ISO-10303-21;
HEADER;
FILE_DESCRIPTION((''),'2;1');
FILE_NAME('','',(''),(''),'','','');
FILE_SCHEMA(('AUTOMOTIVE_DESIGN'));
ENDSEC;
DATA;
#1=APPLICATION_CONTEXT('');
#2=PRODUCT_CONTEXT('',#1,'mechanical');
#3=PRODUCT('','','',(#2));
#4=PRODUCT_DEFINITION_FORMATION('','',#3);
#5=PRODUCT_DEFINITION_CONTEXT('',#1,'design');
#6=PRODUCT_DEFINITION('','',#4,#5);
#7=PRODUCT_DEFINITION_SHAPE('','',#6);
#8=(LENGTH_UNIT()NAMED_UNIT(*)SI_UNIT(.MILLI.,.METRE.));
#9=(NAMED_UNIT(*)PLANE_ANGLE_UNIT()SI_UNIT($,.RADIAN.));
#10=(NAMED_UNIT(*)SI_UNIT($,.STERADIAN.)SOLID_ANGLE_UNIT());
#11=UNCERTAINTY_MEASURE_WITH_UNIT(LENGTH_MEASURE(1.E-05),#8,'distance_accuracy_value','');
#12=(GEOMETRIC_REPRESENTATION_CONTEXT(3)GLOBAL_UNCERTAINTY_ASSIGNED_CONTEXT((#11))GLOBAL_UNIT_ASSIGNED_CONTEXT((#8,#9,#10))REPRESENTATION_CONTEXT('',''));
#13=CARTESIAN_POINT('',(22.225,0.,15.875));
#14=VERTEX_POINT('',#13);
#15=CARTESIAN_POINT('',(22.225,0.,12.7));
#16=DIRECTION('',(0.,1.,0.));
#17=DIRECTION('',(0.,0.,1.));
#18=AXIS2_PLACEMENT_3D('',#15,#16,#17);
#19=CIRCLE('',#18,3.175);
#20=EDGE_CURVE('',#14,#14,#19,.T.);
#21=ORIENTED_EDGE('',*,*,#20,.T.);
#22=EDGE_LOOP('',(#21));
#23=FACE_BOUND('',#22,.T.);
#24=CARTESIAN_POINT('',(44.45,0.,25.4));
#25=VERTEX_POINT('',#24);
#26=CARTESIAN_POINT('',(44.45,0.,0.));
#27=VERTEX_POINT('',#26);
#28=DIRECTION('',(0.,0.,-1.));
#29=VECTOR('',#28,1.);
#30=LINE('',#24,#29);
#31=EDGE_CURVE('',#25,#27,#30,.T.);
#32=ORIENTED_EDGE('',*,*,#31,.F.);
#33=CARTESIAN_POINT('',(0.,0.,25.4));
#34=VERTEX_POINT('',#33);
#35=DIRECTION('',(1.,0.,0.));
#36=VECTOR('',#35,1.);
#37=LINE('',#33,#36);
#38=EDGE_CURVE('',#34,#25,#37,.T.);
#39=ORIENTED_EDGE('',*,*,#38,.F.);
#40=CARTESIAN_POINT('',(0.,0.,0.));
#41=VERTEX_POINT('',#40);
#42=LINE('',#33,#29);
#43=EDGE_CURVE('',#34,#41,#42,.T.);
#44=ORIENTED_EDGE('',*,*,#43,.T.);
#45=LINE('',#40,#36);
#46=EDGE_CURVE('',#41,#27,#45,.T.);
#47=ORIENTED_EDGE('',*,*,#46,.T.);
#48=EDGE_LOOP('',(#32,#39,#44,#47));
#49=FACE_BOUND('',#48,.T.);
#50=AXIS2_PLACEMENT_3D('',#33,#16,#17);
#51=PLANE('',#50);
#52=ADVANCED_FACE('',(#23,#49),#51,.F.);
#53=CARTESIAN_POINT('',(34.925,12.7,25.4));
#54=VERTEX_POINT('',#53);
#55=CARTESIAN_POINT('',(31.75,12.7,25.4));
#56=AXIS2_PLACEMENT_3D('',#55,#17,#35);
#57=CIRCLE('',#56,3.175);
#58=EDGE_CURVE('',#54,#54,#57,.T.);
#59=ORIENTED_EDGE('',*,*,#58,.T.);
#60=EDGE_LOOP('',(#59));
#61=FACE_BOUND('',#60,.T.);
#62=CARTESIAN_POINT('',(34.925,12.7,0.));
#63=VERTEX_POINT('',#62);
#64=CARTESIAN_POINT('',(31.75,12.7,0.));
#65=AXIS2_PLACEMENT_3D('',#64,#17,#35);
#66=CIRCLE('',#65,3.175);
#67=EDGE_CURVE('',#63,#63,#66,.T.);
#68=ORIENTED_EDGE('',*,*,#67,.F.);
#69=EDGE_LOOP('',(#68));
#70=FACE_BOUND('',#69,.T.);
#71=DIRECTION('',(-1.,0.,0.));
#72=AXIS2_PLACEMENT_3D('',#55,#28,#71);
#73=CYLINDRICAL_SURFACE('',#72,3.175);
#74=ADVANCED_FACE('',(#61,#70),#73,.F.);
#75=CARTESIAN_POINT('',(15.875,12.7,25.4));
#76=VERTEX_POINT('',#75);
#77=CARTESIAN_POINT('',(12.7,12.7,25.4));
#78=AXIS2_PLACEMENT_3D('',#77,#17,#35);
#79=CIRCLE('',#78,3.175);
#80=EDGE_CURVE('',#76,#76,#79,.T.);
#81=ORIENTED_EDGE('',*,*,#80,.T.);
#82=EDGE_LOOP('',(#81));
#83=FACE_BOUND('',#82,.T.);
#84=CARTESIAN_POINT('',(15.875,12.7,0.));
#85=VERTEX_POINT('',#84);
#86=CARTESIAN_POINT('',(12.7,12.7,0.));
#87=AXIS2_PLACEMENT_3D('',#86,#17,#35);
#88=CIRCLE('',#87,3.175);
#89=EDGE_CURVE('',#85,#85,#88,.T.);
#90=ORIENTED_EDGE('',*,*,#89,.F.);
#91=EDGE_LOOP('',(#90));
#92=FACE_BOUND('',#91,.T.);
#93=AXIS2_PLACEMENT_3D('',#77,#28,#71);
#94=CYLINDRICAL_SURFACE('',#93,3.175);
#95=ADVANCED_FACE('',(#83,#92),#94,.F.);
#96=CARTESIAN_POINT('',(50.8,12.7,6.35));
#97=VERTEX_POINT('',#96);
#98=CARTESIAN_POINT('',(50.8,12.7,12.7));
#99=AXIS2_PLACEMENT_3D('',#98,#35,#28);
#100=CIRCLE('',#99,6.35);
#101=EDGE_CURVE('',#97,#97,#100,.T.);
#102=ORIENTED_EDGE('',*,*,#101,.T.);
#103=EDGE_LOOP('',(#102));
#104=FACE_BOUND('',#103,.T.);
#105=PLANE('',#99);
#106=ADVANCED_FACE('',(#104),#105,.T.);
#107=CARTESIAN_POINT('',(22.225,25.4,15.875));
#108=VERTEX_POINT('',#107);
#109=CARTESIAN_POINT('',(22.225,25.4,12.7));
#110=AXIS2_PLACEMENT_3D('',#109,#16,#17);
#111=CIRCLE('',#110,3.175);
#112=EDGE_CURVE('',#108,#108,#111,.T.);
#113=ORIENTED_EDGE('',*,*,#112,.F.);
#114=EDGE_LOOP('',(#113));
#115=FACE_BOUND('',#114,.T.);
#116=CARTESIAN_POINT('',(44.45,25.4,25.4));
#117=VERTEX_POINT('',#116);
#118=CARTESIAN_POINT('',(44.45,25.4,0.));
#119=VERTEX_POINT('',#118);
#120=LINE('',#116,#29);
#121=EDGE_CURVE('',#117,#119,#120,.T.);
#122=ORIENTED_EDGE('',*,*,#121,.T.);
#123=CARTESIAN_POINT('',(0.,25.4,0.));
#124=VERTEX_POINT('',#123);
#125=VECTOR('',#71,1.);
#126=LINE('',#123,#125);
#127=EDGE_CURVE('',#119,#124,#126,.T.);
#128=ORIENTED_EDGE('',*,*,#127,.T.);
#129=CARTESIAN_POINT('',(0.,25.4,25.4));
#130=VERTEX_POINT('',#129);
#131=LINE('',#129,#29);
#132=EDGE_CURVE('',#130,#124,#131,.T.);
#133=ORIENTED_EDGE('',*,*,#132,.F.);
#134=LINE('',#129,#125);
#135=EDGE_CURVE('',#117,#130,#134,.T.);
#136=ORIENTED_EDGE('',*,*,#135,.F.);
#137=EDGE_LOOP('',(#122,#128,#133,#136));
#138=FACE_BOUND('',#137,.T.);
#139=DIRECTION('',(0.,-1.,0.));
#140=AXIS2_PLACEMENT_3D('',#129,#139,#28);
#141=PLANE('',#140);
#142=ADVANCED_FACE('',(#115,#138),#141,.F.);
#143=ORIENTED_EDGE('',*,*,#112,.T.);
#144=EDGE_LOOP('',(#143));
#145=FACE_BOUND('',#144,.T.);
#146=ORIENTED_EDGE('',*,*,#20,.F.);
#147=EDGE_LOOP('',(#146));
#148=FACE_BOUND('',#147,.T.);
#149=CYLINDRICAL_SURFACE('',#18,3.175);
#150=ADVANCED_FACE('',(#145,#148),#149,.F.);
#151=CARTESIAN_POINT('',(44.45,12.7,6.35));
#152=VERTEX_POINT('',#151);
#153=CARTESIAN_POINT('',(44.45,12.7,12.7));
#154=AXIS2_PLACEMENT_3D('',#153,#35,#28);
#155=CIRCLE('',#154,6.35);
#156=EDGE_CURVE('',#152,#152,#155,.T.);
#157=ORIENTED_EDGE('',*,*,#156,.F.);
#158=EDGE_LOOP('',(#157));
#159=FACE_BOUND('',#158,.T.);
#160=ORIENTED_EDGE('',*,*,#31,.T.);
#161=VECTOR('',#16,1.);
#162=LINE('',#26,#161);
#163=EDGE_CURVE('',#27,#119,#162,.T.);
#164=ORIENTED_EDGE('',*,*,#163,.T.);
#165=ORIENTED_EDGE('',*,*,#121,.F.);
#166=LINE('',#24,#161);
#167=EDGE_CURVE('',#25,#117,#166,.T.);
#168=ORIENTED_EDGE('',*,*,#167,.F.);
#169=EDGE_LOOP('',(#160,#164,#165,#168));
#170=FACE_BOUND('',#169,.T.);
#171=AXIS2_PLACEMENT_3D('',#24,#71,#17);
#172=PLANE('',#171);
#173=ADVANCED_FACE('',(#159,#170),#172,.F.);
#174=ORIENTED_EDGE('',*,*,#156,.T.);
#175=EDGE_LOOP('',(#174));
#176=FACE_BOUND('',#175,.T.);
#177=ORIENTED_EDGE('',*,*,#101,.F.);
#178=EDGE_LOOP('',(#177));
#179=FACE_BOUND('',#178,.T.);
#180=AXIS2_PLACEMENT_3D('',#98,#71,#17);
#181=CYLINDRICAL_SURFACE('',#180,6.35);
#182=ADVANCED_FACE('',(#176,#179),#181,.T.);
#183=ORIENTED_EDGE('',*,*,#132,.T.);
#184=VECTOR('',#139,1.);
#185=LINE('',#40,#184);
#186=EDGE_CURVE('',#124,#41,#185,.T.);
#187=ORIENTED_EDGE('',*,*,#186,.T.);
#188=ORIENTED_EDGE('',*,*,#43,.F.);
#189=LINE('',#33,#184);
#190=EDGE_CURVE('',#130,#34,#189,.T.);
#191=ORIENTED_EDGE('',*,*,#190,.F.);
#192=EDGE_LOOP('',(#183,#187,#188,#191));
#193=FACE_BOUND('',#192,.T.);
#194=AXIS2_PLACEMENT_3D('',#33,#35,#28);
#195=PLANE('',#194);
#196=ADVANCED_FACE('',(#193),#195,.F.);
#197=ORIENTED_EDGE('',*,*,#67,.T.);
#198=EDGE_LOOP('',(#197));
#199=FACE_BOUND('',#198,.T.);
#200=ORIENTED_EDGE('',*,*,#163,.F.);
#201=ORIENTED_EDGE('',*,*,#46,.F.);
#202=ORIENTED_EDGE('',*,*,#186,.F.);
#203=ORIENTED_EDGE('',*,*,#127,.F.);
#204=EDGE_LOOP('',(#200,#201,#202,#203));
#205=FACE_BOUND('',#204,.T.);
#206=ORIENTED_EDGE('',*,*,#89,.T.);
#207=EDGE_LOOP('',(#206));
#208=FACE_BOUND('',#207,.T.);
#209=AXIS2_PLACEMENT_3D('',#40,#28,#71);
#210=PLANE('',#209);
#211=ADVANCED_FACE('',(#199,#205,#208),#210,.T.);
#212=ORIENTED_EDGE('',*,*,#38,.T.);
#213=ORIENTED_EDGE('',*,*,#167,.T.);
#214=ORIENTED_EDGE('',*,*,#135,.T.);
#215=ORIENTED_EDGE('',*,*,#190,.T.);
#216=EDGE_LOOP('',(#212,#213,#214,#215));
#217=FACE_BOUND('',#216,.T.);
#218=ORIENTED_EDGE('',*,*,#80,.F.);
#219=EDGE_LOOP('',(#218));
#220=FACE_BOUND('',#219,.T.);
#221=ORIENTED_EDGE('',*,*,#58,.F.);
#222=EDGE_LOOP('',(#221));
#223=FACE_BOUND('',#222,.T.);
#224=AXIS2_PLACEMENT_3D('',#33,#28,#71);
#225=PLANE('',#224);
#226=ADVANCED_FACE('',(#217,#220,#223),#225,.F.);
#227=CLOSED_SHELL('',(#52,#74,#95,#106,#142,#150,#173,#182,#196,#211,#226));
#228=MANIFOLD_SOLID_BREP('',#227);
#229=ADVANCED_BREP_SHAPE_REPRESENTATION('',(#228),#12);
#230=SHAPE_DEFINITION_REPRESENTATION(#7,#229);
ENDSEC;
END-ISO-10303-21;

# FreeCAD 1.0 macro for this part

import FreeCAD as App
import Part
import Sketcher
Q = App.Units.Quantity

doc = App.newDocument("Part")
params = doc.addObject("Spreadsheet::Sheet", "Params")
for row, (alias, value) in enumerate([
    ("sketch1_diameter", "0.25 in"),
    ("sketch1_height", "1 in"),
    ("sketch1_width", "1.75 in"),
    ("pad1_length", "1 in"),
    ("sketch2_diameter", "0.5 in"),
    ("pad2_length", "0.25 in"),
    ("sketch3_diameter", "0.25 in"),
], start=1):
    params.set(f"A{row}", alias)
    params.set(f"B{row}", "=" + value)
    params.setAlias(f"B{row}", alias)

body = doc.addObject("PartDesign::Body", "Body")

sketch1 = doc.addObject("Sketcher::SketchObject", "Sketch")
body.addObject(sketch1)
sketch1.AttachmentSupport = (doc.XY_Plane, [""])
sketch1.MapMode = "FlatFace"
sketch1.addGeometry([
    Part.LineSegment(App.Vector(0, 25.4, 0), App.Vector(0, 0, 0)),
    Part.LineSegment(App.Vector(0, 0, 0), App.Vector(44.5, 0, 0)),
    Part.LineSegment(App.Vector(44.5, 0, 0), App.Vector(44.5, 25.4, 0)),
    Part.LineSegment(App.Vector(44.5, 25.4, 0), App.Vector(0, 25.4, 0)),
    Part.Circle(App.Vector(12.7, 12.7, 0), App.Vector(0, 0, 1), 3.2),
    Part.Circle(App.Vector(31.8, 12.7, 0), App.Vector(0, 0, 1), 3.2),
], False)
sketch1.addConstraint([
    Sketcher.Constraint("Coincident", 0, 2, 1, 1),
    Sketcher.Constraint("Coincident", 1, 2, 2, 1),
    Sketcher.Constraint("Coincident", 2, 2, 3, 1),
    Sketcher.Constraint("Coincident", 3, 2, 0, 1),
    Sketcher.Constraint("Vertical", 0),
    Sketcher.Constraint("Horizontal", 1),
    Sketcher.Constraint("Vertical", 2),
    Sketcher.Constraint("Horizontal", 3),
    Sketcher.Constraint("Coincident", 0, 2, -1, 1),
    Sketcher.Constraint("Equal", 4, 5),
    Sketcher.Constraint("Horizontal", 4, 3, 5, 3),
    Sketcher.Constraint("Diameter", 4, Q("0.25 in")),
    Sketcher.Constraint("DistanceY", 0, 2, 0, 1, Q("1 in")),
    Sketcher.Constraint("DistanceX", 1, 1, 1, 2, Q("1.75 in")),
    Sketcher.Constraint("DistanceX", -1, 1, 4, 3, Q("0.5 in")),
    Sketcher.Constraint("DistanceY", -1, 1, 4, 3, Q("0.5 in")),
    Sketcher.Constraint("DistanceX", 5, 3, 1, 2, Q("0.5 in")),
])
sketch1.setExpression("Constraints[11]", "Params.sketch1_diameter")
sketch1.setExpression("Constraints[12]", "Params.sketch1_height")
sketch1.setExpression("Constraints[13]", "Params.sketch1_width")
pad1 = doc.addObject("PartDesign::Pad", "Pad")
body.addObject(pad1)
pad1.Profile = sketch1
pad1.setExpression("Length", "Params.pad1_length")

sketch2 = doc.addObject("Sketcher::SketchObject", "Sketch001")
body.addObject(sketch2)
sketch2.AttachmentSupport = (doc.YZ_Plane, [""])
sketch2.MapMode = "FlatFace"
sketch2.AttachmentOffset = App.Placement(App.Vector(0, 0, 1.75 * 25.4), App.Rotation())
sketch2.addGeometry(Part.Circle(App.Vector(13, 13, 0), App.Vector(0, 0, 1), 6), False)
sketch2.addConstraint([
    Sketcher.Constraint("Diameter", 0, Q("0.5 in")),
    Sketcher.Constraint("DistanceX", -1, 1, 0, 3, Q("0.5 in")),
    Sketcher.Constraint("DistanceY", -1, 1, 0, 3, Q("0.5 in")),
])
sketch2.setExpression("Constraints[0]", "Params.sketch2_diameter")
pad2 = doc.addObject("PartDesign::Pad", "Pad001")
body.addObject(pad2)
pad2.Profile = sketch2
pad2.setExpression("Length", "Params.pad2_length")

sketch3 = doc.addObject("Sketcher::SketchObject", "Sketch002")
body.addObject(sketch3)
sketch3.AttachmentSupport = (doc.XZ_Plane, [""])
sketch3.MapMode = "FlatFace"
sketch3.AttachmentOffset = App.Placement(App.Vector(0, 0, -1 * 25.4), App.Rotation())
sketch3.addGeometry(Part.Circle(App.Vector(22.2, 12.7, 0), App.Vector(0, 0, 1), 3.2), False)
sketch3.addConstraint([
    Sketcher.Constraint("Diameter", 0, Q("0.25 in")),
    Sketcher.Constraint("DistanceY", -1, 1, 0, 3, Q("0.5 in")),
    Sketcher.Constraint("DistanceX", -1, 1, 0, 3, Q("0.875 in")),
])
sketch3.setExpression("Constraints[0]", "Params.sketch3_diameter")
pocket1 = doc.addObject("PartDesign::Pocket", "Pocket")
body.addObject(pocket1)
pocket1.Profile = sketch3
pocket1.Type = "ThroughAll"
pocket1.Reversed = True

doc.recompute()
